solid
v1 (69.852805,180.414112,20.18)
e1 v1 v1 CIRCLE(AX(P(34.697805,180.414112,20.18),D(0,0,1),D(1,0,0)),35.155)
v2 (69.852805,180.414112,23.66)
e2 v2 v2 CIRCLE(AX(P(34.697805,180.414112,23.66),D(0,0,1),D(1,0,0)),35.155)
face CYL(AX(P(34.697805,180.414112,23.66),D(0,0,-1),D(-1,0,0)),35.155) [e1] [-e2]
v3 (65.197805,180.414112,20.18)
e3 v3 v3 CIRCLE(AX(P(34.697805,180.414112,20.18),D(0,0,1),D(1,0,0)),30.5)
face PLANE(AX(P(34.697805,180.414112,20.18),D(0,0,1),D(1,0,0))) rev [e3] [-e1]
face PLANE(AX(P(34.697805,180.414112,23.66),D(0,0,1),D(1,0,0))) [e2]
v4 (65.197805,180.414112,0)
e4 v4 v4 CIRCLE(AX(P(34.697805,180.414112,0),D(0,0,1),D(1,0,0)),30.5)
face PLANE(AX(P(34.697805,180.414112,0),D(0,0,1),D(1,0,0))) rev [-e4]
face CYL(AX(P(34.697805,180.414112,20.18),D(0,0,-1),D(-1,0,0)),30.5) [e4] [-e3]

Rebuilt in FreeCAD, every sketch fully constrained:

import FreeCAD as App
import Part
import Sketcher

doc = App.newDocument("Part")
body = doc.addObject("PartDesign::Body", "Body")

sketch1 = body.newObject("Sketcher::SketchObject", "Sketch")
sketch1.AttachmentSupport = (doc.getObject("XY_Plane"), [""])
sketch1.MapMode = "FlatFace"
sketch1.addGeometry(Part.Circle(App.Vector(35, 180, 0), App.Vector(0, 0, 1), 30), False)
sketch1.addConstraint([
    Sketcher.Constraint("Diameter", 0, 61.0),
    Sketcher.Constraint("DistanceY", -1, 1, 0, 3, 180.414112),
    Sketcher.Constraint("DistanceX", -1, 1, 0, 3, 34.697805),
])
pad1 = body.newObject("PartDesign::Pad", "Pad")
pad1.Profile = sketch1
pad1.Length = 20.18

sketch2 = body.newObject("Sketcher::SketchObject", "Sketch001")
sketch2.AttachmentSupport = (doc.getObject("XY_Plane"), [""])
sketch2.MapMode = "FlatFace"
sketch2.AttachmentOffset = App.Placement(App.Vector(0, 0, 20.18), App.Rotation())
sketch2.addGeometry(Part.Circle(App.Vector(35, 180, 0), App.Vector(0, 0, 1), 35), False)
sketch2.addConstraint([
    Sketcher.Constraint("Diameter", 0, 70.31),
    Sketcher.Constraint("DistanceY", -1, 1, 0, 3, 180.414112),
    Sketcher.Constraint("DistanceX", -1, 1, 0, 3, 34.697805),
])
pad2 = body.newObject("PartDesign::Pad", "Pad001")
pad2.Profile = sketch2
pad2.Length = 3.48

doc.recompute()
